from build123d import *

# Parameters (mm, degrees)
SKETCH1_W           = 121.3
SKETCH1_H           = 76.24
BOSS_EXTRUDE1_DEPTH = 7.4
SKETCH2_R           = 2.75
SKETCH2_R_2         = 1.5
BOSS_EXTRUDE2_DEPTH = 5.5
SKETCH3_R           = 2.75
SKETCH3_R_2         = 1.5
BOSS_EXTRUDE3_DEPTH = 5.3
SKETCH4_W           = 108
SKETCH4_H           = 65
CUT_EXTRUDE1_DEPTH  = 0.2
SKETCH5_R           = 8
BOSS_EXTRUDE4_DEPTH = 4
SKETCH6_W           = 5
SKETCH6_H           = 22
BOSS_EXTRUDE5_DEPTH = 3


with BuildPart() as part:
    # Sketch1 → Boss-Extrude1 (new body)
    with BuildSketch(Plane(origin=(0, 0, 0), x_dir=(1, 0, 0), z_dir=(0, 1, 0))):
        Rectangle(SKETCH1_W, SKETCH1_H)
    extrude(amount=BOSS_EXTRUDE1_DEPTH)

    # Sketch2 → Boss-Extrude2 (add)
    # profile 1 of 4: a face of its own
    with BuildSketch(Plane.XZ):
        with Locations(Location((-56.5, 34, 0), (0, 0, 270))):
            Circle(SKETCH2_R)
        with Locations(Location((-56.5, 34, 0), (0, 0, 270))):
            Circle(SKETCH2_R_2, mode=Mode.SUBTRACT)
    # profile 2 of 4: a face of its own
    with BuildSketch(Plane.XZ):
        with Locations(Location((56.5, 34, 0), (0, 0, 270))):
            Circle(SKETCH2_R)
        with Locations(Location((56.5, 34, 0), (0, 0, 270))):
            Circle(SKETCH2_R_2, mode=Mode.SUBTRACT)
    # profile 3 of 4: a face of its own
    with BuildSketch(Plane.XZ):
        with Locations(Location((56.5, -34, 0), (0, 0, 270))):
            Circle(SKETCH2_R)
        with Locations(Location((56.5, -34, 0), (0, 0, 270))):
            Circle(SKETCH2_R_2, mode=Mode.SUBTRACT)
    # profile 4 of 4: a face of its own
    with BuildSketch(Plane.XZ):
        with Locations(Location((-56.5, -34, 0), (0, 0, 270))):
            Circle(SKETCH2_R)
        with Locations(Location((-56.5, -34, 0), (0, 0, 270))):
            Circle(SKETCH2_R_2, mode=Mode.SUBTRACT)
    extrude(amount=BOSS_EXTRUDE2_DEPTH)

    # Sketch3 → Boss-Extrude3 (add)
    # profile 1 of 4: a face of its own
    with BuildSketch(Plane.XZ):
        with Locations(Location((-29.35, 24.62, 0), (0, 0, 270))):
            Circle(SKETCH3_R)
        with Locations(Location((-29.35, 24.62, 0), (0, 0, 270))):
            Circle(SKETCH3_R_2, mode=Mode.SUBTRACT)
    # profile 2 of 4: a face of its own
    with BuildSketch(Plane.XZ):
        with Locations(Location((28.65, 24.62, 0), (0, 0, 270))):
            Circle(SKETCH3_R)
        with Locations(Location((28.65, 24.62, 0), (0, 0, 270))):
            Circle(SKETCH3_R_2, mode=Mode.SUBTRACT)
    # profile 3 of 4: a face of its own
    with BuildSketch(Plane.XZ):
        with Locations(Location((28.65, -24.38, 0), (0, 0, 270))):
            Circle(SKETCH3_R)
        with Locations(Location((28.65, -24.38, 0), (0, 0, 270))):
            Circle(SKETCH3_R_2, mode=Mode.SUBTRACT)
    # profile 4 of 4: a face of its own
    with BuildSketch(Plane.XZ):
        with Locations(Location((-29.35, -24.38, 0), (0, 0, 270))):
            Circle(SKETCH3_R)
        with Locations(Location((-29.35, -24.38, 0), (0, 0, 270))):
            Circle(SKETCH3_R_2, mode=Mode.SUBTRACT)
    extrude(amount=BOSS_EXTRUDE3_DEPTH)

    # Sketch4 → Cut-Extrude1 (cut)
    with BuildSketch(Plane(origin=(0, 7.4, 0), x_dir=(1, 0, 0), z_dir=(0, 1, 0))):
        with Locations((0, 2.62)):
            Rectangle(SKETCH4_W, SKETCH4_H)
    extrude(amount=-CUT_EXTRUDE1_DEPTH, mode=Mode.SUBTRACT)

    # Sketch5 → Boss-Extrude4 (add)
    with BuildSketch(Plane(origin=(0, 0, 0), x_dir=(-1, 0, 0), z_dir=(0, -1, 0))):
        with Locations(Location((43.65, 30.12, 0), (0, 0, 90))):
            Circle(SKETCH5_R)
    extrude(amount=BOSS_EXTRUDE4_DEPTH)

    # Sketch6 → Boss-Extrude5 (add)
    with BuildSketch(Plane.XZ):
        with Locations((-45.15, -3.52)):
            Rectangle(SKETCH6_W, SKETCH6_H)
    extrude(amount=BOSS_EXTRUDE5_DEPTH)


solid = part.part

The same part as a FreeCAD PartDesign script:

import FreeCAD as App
import Part
import Sketcher

V = App.Vector
Q = App.Units.Quantity

doc = App.newDocument("Part")
body = doc.addObject("PartDesign::Body", "Body")

sketch1 = doc.addObject("Sketcher::SketchObject", "Sketch")
body.addObject(sketch1)
sketch1.AttachmentSupport = (doc.XZ_Plane, [""])
sketch1.MapMode = "FlatFace"
sketch1.addGeometry(Part.LineSegment(V(-61, -38, 0), V(-61, 38, 0)), False)
sketch1.addGeometry(Part.LineSegment(V(-61, 38, 0), V(61, 38, 0)), False)
sketch1.addGeometry(Part.LineSegment(V(61, 38, 0), V(61, -38, 0)), False)
sketch1.addGeometry(Part.LineSegment(V(61, -38, 0), V(-61, -38, 0)), False)
sketch1.addConstraint(Sketcher.Constraint("Coincident", 0, 2, 1, 1))
sketch1.addConstraint(Sketcher.Constraint("Coincident", 1, 2, 2, 1))
sketch1.addConstraint(Sketcher.Constraint("Coincident", 2, 2, 3, 1))
sketch1.addConstraint(Sketcher.Constraint("Coincident", 3, 2, 0, 1))
sketch1.addConstraint(Sketcher.Constraint("Vertical", 0))
sketch1.addConstraint(Sketcher.Constraint("Horizontal", 1))
sketch1.addConstraint(Sketcher.Constraint("Vertical", 2))
sketch1.addConstraint(Sketcher.Constraint("Horizontal", 3))
sketch1.addConstraint(Sketcher.Constraint("Symmetric", 0, 2, 2, 2, -1, 1))
sketch1.addConstraint(Sketcher.Constraint("DistanceX", 1, 1, 1, 2, Q("121.3 mm")))
sketch1.addConstraint(Sketcher.Constraint("DistanceY", 0, 1, 0, 2, Q("76.24 mm")))
pad1 = doc.addObject("PartDesign::Pad", "Pad")
body.addObject(pad1)
pad1.Profile = sketch1
pad1.Length = 7.4
pad1.Reversed = True

sketch2 = doc.addObject("Sketcher::SketchObject", "Sketch001")
body.addObject(sketch2)
sketch2.AttachmentSupport = (doc.XZ_Plane, [""])
sketch2.MapMode = "FlatFace"
sketch2.addGeometry(Part.Circle(V(-56.5, 34, 0), V(0, 0, 1), 2.8), False)
sketch2.addGeometry(Part.Circle(V(-56.5, 34, 0), V(0, 0, 1), 1.5), False)
sketch2.addGeometry(Part.Circle(V(56.5, 34, 0), V(0, 0, 1), 2.8), False)
sketch2.addGeometry(Part.Circle(V(56.5, 34, 0), V(0, 0, 1), 1.5), False)
sketch2.addGeometry(Part.Circle(V(56.5, -34, 0), V(0, 0, 1), 2.8), False)
sketch2.addGeometry(Part.Circle(V(56.5, -34, 0), V(0, 0, 1), 1.5), False)
sketch2.addGeometry(Part.Circle(V(-56.5, -34, 0), V(0, 0, 1), 2.8), False)
sketch2.addGeometry(Part.Circle(V(-56.5, -34, 0), V(0, 0, 1), 1.5), False)
sketch2.addConstraint(Sketcher.Constraint("Coincident", 1, 3, 0, 3))
sketch2.addConstraint(Sketcher.Constraint("Coincident", 3, 3, 2, 3))
sketch2.addConstraint(Sketcher.Constraint("Coincident", 5, 3, 4, 3))
sketch2.addConstraint(Sketcher.Constraint("Coincident", 7, 3, 6, 3))
sketch2.addConstraint(Sketcher.Constraint("Equal", 0, 2))
sketch2.addConstraint(Sketcher.Constraint("Equal", 1, 3))
sketch2.addConstraint(Sketcher.Constraint("Equal", 2, 4))
sketch2.addConstraint(Sketcher.Constraint("Equal", 3, 5))
sketch2.addConstraint(Sketcher.Constraint("Equal", 4, 6))
sketch2.addConstraint(Sketcher.Constraint("Equal", 5, 7))
sketch2.addConstraint(Sketcher.Constraint("Symmetric", 0, 3, 4, 3, -1, 1))
sketch2.addConstraint(Sketcher.Constraint("Symmetric", 2, 3, 6, 3, -1, 1))
sketch2.addConstraint(Sketcher.Constraint("Symmetric", 0, 3, 2, 3, -2))
sketch2.addConstraint(Sketcher.Constraint("Diameter", 1, Q("3 mm")))
sketch2.addConstraint(Sketcher.Constraint("Diameter", 0, Q("5.5 mm")))
sketch2.addConstraint(Sketcher.Constraint("DistanceY", -1, 1, 0, 3, Q("34 mm")))
sketch2.addConstraint(Sketcher.Constraint("DistanceX", 0, 3, 2, 3, Q("113 mm")))
pad2 = doc.addObject("PartDesign::Pad", "Pad001")
body.addObject(pad2)
pad2.Profile = sketch2
pad2.Length = 5.5

sketch3 = doc.addObject("Sketcher::SketchObject", "Sketch002")
body.addObject(sketch3)
sketch3.AttachmentSupport = (doc.XZ_Plane, [""])
sketch3.MapMode = "FlatFace"
sketch3.addGeometry(Part.Circle(V(-29.4, 24.6, 0), V(0, 0, 1), 2.8), False)
sketch3.addGeometry(Part.Circle(V(-29.4, 24.6, 0), V(0, 0, 1), 1.5), False)
sketch3.addGeometry(Part.Circle(V(28.6, 24.6, 0), V(0, 0, 1), 2.8), False)
sketch3.addGeometry(Part.Circle(V(28.6, 24.6, 0), V(0, 0, 1), 1.5), False)
sketch3.addGeometry(Part.Circle(V(28.6, -24.4, 0), V(0, 0, 1), 2.8), False)
sketch3.addGeometry(Part.Circle(V(28.6, -24.4, 0), V(0, 0, 1), 1.5), False)
sketch3.addGeometry(Part.Circle(V(-29.4, -24.4, 0), V(0, 0, 1), 2.8), False)
sketch3.addGeometry(Part.Circle(V(-29.4, -24.4, 0), V(0, 0, 1), 1.5), False)
sketch3.addConstraint(Sketcher.Constraint("Coincident", 1, 3, 0, 3))
sketch3.addConstraint(Sketcher.Constraint("Coincident", 3, 3, 2, 3))
sketch3.addConstraint(Sketcher.Constraint("Coincident", 5, 3, 4, 3))
sketch3.addConstraint(Sketcher.Constraint("Coincident", 7, 3, 6, 3))
sketch3.addConstraint(Sketcher.Constraint("Equal", 0, 2))
sketch3.addConstraint(Sketcher.Constraint("Equal", 1, 3))
sketch3.addConstraint(Sketcher.Constraint("Equal", 2, 4))
sketch3.addConstraint(Sketcher.Constraint("Equal", 3, 5))
sketch3.addConstraint(Sketcher.Constraint("Equal", 4, 6))
sketch3.addConstraint(Sketcher.Constraint("Equal", 5, 7))
sketch3.addConstraint(Sketcher.Constraint("Horizontal", 1, 3, 2, 3))
sketch3.addConstraint(Sketcher.Constraint("Horizontal", 5, 3, 6, 3))
sketch3.addConstraint(Sketcher.Constraint("Vertical", 3, 3, 4, 3))
sketch3.addConstraint(Sketcher.Constraint("Vertical", 1, 3, 6, 3))
sketch3.addConstraint(Sketcher.Constraint("Diameter", 1, Q("3 mm")))
sketch3.addConstraint(Sketcher.Constraint("Diameter", 0, Q("5.5 mm")))
sketch3.addConstraint(Sketcher.Constraint("DistanceX", 0, 3, 2, 3, Q("58 mm")))
sketch3.addConstraint(Sketcher.Constraint("DistanceY", 4, 3, 2, 3, Q("49 mm")))
sketch3.addConstraint(Sketcher.Constraint("DistanceX", 0, 3, -1, 1, Q("29.35 mm")))
sketch3.addConstraint(Sketcher.Constraint("DistanceY", -1, 1, 0, 3, Q("24.62 mm")))
pad3 = doc.addObject("PartDesign::Pad", "Pad002")
body.addObject(pad3)
pad3.Profile = sketch3
pad3.Length = 5.3

sketch4 = doc.addObject("Sketcher::SketchObject", "Sketch003")
body.addObject(sketch4)
sketch4.AttachmentSupport = (doc.XZ_Plane, [""])
sketch4.MapMode = "FlatFace"
sketch4.AttachmentOffset = App.Placement(V(0, 0, -7.4), App.Rotation())
sketch4.addGeometry(Part.LineSegment(V(-54, -35, 0), V(-54, 30, 0)), False)
sketch4.addGeometry(Part.LineSegment(V(-54, 30, 0), V(54, 30, 0)), False)
sketch4.addGeometry(Part.LineSegment(V(54, 30, 0), V(54, -35, 0)), False)
sketch4.addGeometry(Part.LineSegment(V(54, -35, 0), V(-54, -35, 0)), False)
sketch4.addConstraint(Sketcher.Constraint("Coincident", 0, 2, 1, 1))
sketch4.addConstraint(Sketcher.Constraint("Coincident", 1, 2, 2, 1))
sketch4.addConstraint(Sketcher.Constraint("Coincident", 2, 2, 3, 1))
sketch4.addConstraint(Sketcher.Constraint("Coincident", 3, 2, 0, 1))
sketch4.addConstraint(Sketcher.Constraint("Vertical", 0))
sketch4.addConstraint(Sketcher.Constraint("Horizontal", 1))
sketch4.addConstraint(Sketcher.Constraint("Vertical", 2))
sketch4.addConstraint(Sketcher.Constraint("Horizontal", 3))
sketch4.addConstraint(Sketcher.Constraint("DistanceX", 1, 1, 1, 2, Q("108 mm")))
sketch4.addConstraint(Sketcher.Constraint("DistanceY", 0, 1, 0, 2, Q("65 mm")))
sketch4.addConstraint(Sketcher.Constraint("DistanceX", 0, 2, -1, 1, Q("54 mm")))
sketch4.addConstraint(Sketcher.Constraint("DistanceY", -1, 1, 0, 2, Q("29.88 mm")))
pocket1 = doc.addObject("PartDesign::Pocket", "Pocket")
body.addObject(pocket1)
pocket1.Profile = sketch4
pocket1.Length = 0.2
pocket1.Reversed = True

sketch5 = doc.addObject("Sketcher::SketchObject", "Sketch004")
body.addObject(sketch5)
sketch5.AttachmentSupport = (doc.XZ_Plane, [""])
sketch5.MapMode = "FlatFace"
sketch5.addGeometry(Part.Circle(V(-44, -30, 0), V(0, 0, 1), 8), False)
sketch5.addConstraint(Sketcher.Constraint("Diameter", 0, Q("16 mm")))
sketch5.addConstraint(Sketcher.Constraint("DistanceX", 0, 3, -1, 1, Q("43.65 mm")))
sketch5.addConstraint(Sketcher.Constraint("DistanceY", 0, 3, -1, 1, Q("30.12 mm")))
pad4 = doc.addObject("PartDesign::Pad", "Pad003")
body.addObject(pad4)
pad4.Profile = sketch5
pad4.Length = 4

sketch6 = doc.addObject("Sketcher::SketchObject", "Sketch005")
body.addObject(sketch6)
sketch6.AttachmentSupport = (doc.XZ_Plane, [""])
sketch6.MapMode = "FlatFace"
sketch6.addGeometry(Part.LineSegment(V(-48, 7, 0), V(-48, -15, 0)), False)
sketch6.addGeometry(Part.LineSegment(V(-48, -15, 0), V(-43, -15, 0)), False)
sketch6.addGeometry(Part.LineSegment(V(-43, -15, 0), V(-43, 7, 0)), False)
sketch6.addGeometry(Part.LineSegment(V(-43, 7, 0), V(-48, 7, 0)), False)
sketch6.addConstraint(Sketcher.Constraint("Coincident", 0, 2, 1, 1))
sketch6.addConstraint(Sketcher.Constraint("Coincident", 1, 2, 2, 1))
sketch6.addConstraint(Sketcher.Constraint("Coincident", 2, 2, 3, 1))
sketch6.addConstraint(Sketcher.Constraint("Coincident", 3, 2, 0, 1))
sketch6.addConstraint(Sketcher.Constraint("Vertical", 0))
sketch6.addConstraint(Sketcher.Constraint("Horizontal", 1))
sketch6.addConstraint(Sketcher.Constraint("Vertical", 2))
sketch6.addConstraint(Sketcher.Constraint("Horizontal", 3))
sketch6.addConstraint(Sketcher.Constraint("DistanceX", 1, 1, 1, 2, Q("5 mm")))
sketch6.addConstraint(Sketcher.Constraint("DistanceY", 0, 2, 0, 1, Q("22 mm")))
sketch6.addConstraint(Sketcher.Constraint("DistanceX", 0, 2, -1, 1, Q("47.65 mm")))
sketch6.addConstraint(Sketcher.Constraint("DistanceY", 0, 2, -1, 1, Q("14.52 mm")))
pad5 = doc.addObject("PartDesign::Pad", "Pad004")
body.addObject(pad5)
pad5.Profile = sketch6
pad5.Length = 3

doc.recompute()
